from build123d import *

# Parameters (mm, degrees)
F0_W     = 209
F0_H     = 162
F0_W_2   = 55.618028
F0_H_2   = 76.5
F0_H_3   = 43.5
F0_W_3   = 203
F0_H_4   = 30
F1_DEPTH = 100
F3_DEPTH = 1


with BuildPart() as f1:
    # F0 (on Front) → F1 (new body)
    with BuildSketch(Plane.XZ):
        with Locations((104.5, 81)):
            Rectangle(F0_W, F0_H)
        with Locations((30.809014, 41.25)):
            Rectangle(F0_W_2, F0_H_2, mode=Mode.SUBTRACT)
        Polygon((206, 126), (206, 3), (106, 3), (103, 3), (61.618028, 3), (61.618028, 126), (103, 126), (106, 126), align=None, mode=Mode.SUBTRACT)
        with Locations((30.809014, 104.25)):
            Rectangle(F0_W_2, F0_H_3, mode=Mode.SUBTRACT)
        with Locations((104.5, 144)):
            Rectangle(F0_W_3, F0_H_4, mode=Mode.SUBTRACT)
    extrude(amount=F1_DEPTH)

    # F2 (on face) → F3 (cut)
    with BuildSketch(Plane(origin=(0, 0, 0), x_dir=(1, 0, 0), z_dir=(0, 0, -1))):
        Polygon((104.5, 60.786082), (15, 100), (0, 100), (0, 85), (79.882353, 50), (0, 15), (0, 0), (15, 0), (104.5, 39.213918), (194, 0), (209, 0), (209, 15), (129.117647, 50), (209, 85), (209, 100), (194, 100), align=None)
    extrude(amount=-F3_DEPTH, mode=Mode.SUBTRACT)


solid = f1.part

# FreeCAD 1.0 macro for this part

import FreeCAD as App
import Part
import Sketcher

V = App.Vector


def add_polygon(sketch, points):
    """Adds a closed chain of lines whose ends are joined by coincident constraints."""
    first, n = sketch.GeometryCount, len(points)
    for a, b in zip(points, points[1:] + points[:1]):
        sketch.addGeometry(Part.LineSegment(App.Vector(*a, 0), App.Vector(*b, 0)), False)
    for i in range(n):
        sketch.addConstraint(Sketcher.Constraint("Coincident", first + i, 2, first + (i + 1) % n, 1))

doc = App.newDocument("Part")
params = doc.addObject("Spreadsheet::Sheet", "Params")
for row, (alias, value) in enumerate([
    ("sketch1_width", "209 mm"),
    ("sketch1_width2", "203 mm"),
    ("sketch1_height", "162 mm"),
    ("sketch1_height2", "123 mm"),
    ("sketch1_height3", "30 mm"),
    ("pad1_length", "100 mm"),
    ("sketch2_width", "15 mm"),
    ("pocket1_length", "1 mm"),
], start=1):
    params.set(f"A{row}", alias)
    params.set(f"B{row}", "=" + value)
    params.setAlias(f"B{row}", alias)

body = doc.addObject("PartDesign::Body", "Body")

# Sketch on XZ plane
sketch1 = doc.addObject("Sketcher::SketchObject", "Sketch")
body.addObject(sketch1)
sketch1.AttachmentSupport = (doc.XZ_Plane, [""])
sketch1.MapMode = "FlatFace"
add_polygon(sketch1, [(0, 162), (0, 0), (209, 0), (209, 162)])  # lines 0-3
add_polygon(sketch1, [(59, 3), (3, 3), (3, 80), (59, 80)])  # lines 4-7
add_polygon(sketch1, [(62, 126), (206, 126), (206, 3), (62, 3)])  # lines 8-11
add_polygon(sketch1, [(59, 82), (3, 82), (3, 126), (59, 126)])  # lines 12-15
add_polygon(sketch1, [(206, 129), (3, 129), (3, 159), (206, 159)])  # lines 16-19
sketch1.addConstraint([
    Sketcher.Constraint("Vertical", 0),
    Sketcher.Constraint("Horizontal", 1),
    Sketcher.Constraint("Vertical", 2),
    Sketcher.Constraint("Horizontal", 3),
    Sketcher.Constraint("Horizontal", 4),
    Sketcher.Constraint("Vertical", 5),
    Sketcher.Constraint("Horizontal", 6),
    Sketcher.Constraint("Vertical", 7),
    Sketcher.Constraint("Horizontal", 8),
    Sketcher.Constraint("Vertical", 9),
    Sketcher.Constraint("Horizontal", 10),
    Sketcher.Constraint("Vertical", 11),
    Sketcher.Constraint("Horizontal", 12),
    Sketcher.Constraint("Vertical", 13),
    Sketcher.Constraint("Horizontal", 14),
    Sketcher.Constraint("Vertical", 15),
    Sketcher.Constraint("Horizontal", 16),
    Sketcher.Constraint("Vertical", 17),
    Sketcher.Constraint("Horizontal", 18),
    Sketcher.Constraint("Vertical", 19),
    Sketcher.Constraint("Coincident", 0, 2, -1, 1),
    Sketcher.Constraint("Horizontal", 7, 2, 9, 2),
    Sketcher.Constraint("Horizontal", 11, 2, 13, 2),
    Sketcher.Constraint("Vertical", 5, 2, 12, 2),
    Sketcher.Constraint("Vertical", 7, 2, 14, 2),
    Sketcher.Constraint("Vertical", 13, 2, 16, 2),
    Sketcher.Constraint("Vertical", 9, 2, 18, 2),
    Sketcher.Constraint("DistanceX", 1, 1, 1, 2, 209.0),
    Sketcher.Constraint("DistanceX", 16, 2, 16, 1, 203.0),
    Sketcher.Constraint("DistanceY", 0, 2, 0, 1, 162.0),
    Sketcher.Constraint("DistanceY", 9, 2, 9, 1, 123.0),
    Sketcher.Constraint("DistanceY", 17, 1, 17, 2, 30.0),
    Sketcher.Constraint("DistanceY", 5, 1, 5, 2, 76.5),
    Sketcher.Constraint("DistanceY", 13, 1, 13, 2, 43.5),
    Sketcher.Constraint("DistanceX", -1, 1, 4, 2, 3.0),
    Sketcher.Constraint("DistanceY", -1, 1, 4, 2, 3.0),
    Sketcher.Constraint("DistanceY", -1, 1, 16, 2, 129.0),
    Sketcher.Constraint("DistanceX", 7, 2, 10, 2, 3.0),
    Sketcher.Constraint("DistanceX", 4, 2, 4, 1, 55.618028),
])
sketch1.setExpression("Constraints[47]", "Params.sketch1_width")
sketch1.setExpression("Constraints[48]", "Params.sketch1_width2")
sketch1.setExpression("Constraints[49]", "Params.sketch1_height")
sketch1.setExpression("Constraints[50]", "Params.sketch1_height2")
sketch1.setExpression("Constraints[51]", "Params.sketch1_height3")
pad1 = doc.addObject("PartDesign::Pad", "Pad")
body.addObject(pad1)
pad1.Profile = sketch1
pad1.setExpression("Length", "Params.pad1_length")

# Sketch on XY plane
sketch2 = doc.addObject("Sketcher::SketchObject", "Sketch001")
body.addObject(sketch2)
sketch2.AttachmentSupport = (doc.XY_Plane, [""])
sketch2.MapMode = "FlatFace"
add_polygon(sketch2, [(104, -61), (15, -100), (0, -100), (0, -85), (80, -50), (0, -15), (0, 0), (15, 0), (104, -39), (194, 0), (209, 0), (209, -15), (129, -50), (209, -85), (209, -100), (194, -100)])  # lines 0-15
sketch2.addConstraint([
    Sketcher.Constraint("Horizontal", 1),
    Sketcher.Constraint("Vertical", 2),
    Sketcher.Constraint("Vertical", 5),
    Sketcher.Constraint("Horizontal", 6),
    Sketcher.Constraint("Horizontal", 9),
    Sketcher.Constraint("Vertical", 10),
    Sketcher.Constraint("Vertical", 13),
    Sketcher.Constraint("Horizontal", 14),
    Sketcher.Constraint("Coincident", 5, 2, -1, 1),
    Sketcher.Constraint("PointOnObject", 1, 2, -2),
    Sketcher.Constraint("PointOnObject", 8, 2, -1),
    Sketcher.Constraint("Parallel", 0, 3),
    Sketcher.Constraint("Parallel", 4, 7),
    Sketcher.Constraint("Parallel", 3, 8),
    Sketcher.Constraint("Parallel", 8, 11),
    Sketcher.Constraint("Parallel", 7, 12),
    Sketcher.Constraint("Parallel", 12, 15),
    Sketcher.Constraint("Horizontal", 4, 2, 10, 2),
    Sketcher.Constraint("Horizontal", 3, 2, 11, 2),
    Sketcher.Constraint("Horizontal", 2, 2, 12, 2),
    Sketcher.Constraint("Horizontal", 1, 2, 13, 2),
    Sketcher.Constraint("Vertical", 0, 2, 6, 2),
    Sketcher.Constraint("Vertical", 10, 2, 12, 2),
    Sketcher.Constraint("Vertical", 8, 2, 14, 2),
    Sketcher.Constraint("Equal", 6, 9),
    Sketcher.Constraint("Equal", 14, 2),
    Sketcher.Constraint("Equal", 2, 5),
    Sketcher.Constraint("DistanceX", 1, 2, 1, 1, 15.0),
    Sketcher.Constraint("DistanceY", 0, 2, -1, 1, 100.0),
    Sketcher.Constraint("DistanceX", -1, 1, 8, 2, 194.0),
    Sketcher.Constraint("Distance", 0, 97.713773),
])
sketch2.setExpression("Constraints[43]", "Params.sketch2_width")
pocket1 = doc.addObject("PartDesign::Pocket", "Pocket")
body.addObject(pocket1)
pocket1.Profile = sketch2
pocket1.setExpression("Length", "Params.pocket1_length")
pocket1.Reversed = True

doc.recompute()
